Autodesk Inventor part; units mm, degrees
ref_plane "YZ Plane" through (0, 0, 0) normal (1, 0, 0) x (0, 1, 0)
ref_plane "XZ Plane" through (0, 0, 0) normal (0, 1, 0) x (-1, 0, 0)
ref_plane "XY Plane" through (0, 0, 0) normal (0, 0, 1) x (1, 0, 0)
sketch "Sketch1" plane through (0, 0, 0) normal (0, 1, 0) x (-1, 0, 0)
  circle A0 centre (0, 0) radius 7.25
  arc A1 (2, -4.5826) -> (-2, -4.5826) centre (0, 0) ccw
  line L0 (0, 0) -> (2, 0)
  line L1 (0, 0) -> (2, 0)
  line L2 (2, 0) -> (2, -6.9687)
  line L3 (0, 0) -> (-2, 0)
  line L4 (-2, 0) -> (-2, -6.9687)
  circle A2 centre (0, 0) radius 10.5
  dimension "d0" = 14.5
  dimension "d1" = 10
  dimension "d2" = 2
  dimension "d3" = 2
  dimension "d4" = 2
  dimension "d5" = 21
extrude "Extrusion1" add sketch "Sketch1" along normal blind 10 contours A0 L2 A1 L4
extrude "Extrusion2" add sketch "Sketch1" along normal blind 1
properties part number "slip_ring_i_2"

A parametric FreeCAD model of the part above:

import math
import FreeCAD as App
import Part
import Sketcher
from FreeCAD import Vector
Q = App.Units.Quantity

doc = App.newDocument("Part")
body = doc.addObject("PartDesign::Body", "Body")

# Sketch on XZ plane
sketch1 = doc.addObject("Sketcher::SketchObject", "Sketch")
body.addObject(sketch1)
sketch1.AttachmentSupport = (doc.XZ_Plane, [""])
sketch1.MapMode = "FlatFace"
sketch1.addGeometry(Part.ArcOfCircle(Part.Circle(Vector(0, 0, 0), Vector(0, 0, 1), 7.2), math.radians(-74), math.radians(254)), False)
sketch1.addGeometry(Part.LineSegment(Vector(2, -7, 0), Vector(2, -4.6, 0)), False)
sketch1.addGeometry(Part.ArcOfCircle(Part.Circle(Vector(0, 0, 0), Vector(0, 0, 1), 5), math.radians(-66), math.radians(246)), False)
sketch1.addGeometry(Part.LineSegment(Vector(-2, -4.6, 0), Vector(-2, -7, 0)), False)
sketch1.addConstraint(Sketcher.Constraint("Coincident", 0, 1, 1, 1))
sketch1.addConstraint(Sketcher.Constraint("Coincident", 1, 2, 2, 1))
sketch1.addConstraint(Sketcher.Constraint("Coincident", 2, 2, 3, 1))
sketch1.addConstraint(Sketcher.Constraint("Coincident", 3, 2, 0, 2))
sketch1.addConstraint(Sketcher.Constraint("Vertical", 1))
sketch1.addConstraint(Sketcher.Constraint("Vertical", 3))
sketch1.addConstraint(Sketcher.Constraint("Coincident", 0, 3, -1, 1))
sketch1.addConstraint(Sketcher.Constraint("Coincident", 2, 3, -1, 1))
sketch1.addConstraint(Sketcher.Constraint("Horizontal", 1, 2, 2, 2))
sketch1.addConstraint(Sketcher.Constraint("Radius", 2, Q("5 mm")))
sketch1.addConstraint(Sketcher.Constraint("Radius", 0, Q("7.25 mm")))
sketch1.addConstraint(Sketcher.Constraint("DistanceX", -1, 1, 0, 1, Q("2 mm")))
pad1 = doc.addObject("PartDesign::Pad", "Pad")
body.addObject(pad1)
pad1.Profile = sketch1
pad1.Length = 10
pad1.Reversed = True

# Sketch on XZ plane
sketch2 = doc.addObject("Sketcher::SketchObject", "Sketch001")
body.addObject(sketch2)
sketch2.AttachmentSupport = (doc.XZ_Plane, [""])
sketch2.MapMode = "FlatFace"
sketch2.addGeometry(Part.Circle(Vector(0, 0, 0), Vector(0, 0, 1), 10), False)
sketch2.addGeometry(Part.Circle(Vector(0, 0, 0), Vector(0, 0, 1), 7), False)
sketch2.addConstraint(Sketcher.Constraint("Coincident", 0, 3, -1, 1))
sketch2.addConstraint(Sketcher.Constraint("Coincident", 1, 3, -1, 1))
sketch2.addConstraint(Sketcher.Constraint("Diameter", 0, Q("21 mm")))
sketch2.addConstraint(Sketcher.Constraint("Diameter", 1, Q("14.5 mm")))
pad2 = doc.addObject("PartDesign::Pad", "Pad001")
body.addObject(pad2)
pad2.Profile = sketch2
pad2.Length = 1
pad2.Reversed = True

doc.recompute()
